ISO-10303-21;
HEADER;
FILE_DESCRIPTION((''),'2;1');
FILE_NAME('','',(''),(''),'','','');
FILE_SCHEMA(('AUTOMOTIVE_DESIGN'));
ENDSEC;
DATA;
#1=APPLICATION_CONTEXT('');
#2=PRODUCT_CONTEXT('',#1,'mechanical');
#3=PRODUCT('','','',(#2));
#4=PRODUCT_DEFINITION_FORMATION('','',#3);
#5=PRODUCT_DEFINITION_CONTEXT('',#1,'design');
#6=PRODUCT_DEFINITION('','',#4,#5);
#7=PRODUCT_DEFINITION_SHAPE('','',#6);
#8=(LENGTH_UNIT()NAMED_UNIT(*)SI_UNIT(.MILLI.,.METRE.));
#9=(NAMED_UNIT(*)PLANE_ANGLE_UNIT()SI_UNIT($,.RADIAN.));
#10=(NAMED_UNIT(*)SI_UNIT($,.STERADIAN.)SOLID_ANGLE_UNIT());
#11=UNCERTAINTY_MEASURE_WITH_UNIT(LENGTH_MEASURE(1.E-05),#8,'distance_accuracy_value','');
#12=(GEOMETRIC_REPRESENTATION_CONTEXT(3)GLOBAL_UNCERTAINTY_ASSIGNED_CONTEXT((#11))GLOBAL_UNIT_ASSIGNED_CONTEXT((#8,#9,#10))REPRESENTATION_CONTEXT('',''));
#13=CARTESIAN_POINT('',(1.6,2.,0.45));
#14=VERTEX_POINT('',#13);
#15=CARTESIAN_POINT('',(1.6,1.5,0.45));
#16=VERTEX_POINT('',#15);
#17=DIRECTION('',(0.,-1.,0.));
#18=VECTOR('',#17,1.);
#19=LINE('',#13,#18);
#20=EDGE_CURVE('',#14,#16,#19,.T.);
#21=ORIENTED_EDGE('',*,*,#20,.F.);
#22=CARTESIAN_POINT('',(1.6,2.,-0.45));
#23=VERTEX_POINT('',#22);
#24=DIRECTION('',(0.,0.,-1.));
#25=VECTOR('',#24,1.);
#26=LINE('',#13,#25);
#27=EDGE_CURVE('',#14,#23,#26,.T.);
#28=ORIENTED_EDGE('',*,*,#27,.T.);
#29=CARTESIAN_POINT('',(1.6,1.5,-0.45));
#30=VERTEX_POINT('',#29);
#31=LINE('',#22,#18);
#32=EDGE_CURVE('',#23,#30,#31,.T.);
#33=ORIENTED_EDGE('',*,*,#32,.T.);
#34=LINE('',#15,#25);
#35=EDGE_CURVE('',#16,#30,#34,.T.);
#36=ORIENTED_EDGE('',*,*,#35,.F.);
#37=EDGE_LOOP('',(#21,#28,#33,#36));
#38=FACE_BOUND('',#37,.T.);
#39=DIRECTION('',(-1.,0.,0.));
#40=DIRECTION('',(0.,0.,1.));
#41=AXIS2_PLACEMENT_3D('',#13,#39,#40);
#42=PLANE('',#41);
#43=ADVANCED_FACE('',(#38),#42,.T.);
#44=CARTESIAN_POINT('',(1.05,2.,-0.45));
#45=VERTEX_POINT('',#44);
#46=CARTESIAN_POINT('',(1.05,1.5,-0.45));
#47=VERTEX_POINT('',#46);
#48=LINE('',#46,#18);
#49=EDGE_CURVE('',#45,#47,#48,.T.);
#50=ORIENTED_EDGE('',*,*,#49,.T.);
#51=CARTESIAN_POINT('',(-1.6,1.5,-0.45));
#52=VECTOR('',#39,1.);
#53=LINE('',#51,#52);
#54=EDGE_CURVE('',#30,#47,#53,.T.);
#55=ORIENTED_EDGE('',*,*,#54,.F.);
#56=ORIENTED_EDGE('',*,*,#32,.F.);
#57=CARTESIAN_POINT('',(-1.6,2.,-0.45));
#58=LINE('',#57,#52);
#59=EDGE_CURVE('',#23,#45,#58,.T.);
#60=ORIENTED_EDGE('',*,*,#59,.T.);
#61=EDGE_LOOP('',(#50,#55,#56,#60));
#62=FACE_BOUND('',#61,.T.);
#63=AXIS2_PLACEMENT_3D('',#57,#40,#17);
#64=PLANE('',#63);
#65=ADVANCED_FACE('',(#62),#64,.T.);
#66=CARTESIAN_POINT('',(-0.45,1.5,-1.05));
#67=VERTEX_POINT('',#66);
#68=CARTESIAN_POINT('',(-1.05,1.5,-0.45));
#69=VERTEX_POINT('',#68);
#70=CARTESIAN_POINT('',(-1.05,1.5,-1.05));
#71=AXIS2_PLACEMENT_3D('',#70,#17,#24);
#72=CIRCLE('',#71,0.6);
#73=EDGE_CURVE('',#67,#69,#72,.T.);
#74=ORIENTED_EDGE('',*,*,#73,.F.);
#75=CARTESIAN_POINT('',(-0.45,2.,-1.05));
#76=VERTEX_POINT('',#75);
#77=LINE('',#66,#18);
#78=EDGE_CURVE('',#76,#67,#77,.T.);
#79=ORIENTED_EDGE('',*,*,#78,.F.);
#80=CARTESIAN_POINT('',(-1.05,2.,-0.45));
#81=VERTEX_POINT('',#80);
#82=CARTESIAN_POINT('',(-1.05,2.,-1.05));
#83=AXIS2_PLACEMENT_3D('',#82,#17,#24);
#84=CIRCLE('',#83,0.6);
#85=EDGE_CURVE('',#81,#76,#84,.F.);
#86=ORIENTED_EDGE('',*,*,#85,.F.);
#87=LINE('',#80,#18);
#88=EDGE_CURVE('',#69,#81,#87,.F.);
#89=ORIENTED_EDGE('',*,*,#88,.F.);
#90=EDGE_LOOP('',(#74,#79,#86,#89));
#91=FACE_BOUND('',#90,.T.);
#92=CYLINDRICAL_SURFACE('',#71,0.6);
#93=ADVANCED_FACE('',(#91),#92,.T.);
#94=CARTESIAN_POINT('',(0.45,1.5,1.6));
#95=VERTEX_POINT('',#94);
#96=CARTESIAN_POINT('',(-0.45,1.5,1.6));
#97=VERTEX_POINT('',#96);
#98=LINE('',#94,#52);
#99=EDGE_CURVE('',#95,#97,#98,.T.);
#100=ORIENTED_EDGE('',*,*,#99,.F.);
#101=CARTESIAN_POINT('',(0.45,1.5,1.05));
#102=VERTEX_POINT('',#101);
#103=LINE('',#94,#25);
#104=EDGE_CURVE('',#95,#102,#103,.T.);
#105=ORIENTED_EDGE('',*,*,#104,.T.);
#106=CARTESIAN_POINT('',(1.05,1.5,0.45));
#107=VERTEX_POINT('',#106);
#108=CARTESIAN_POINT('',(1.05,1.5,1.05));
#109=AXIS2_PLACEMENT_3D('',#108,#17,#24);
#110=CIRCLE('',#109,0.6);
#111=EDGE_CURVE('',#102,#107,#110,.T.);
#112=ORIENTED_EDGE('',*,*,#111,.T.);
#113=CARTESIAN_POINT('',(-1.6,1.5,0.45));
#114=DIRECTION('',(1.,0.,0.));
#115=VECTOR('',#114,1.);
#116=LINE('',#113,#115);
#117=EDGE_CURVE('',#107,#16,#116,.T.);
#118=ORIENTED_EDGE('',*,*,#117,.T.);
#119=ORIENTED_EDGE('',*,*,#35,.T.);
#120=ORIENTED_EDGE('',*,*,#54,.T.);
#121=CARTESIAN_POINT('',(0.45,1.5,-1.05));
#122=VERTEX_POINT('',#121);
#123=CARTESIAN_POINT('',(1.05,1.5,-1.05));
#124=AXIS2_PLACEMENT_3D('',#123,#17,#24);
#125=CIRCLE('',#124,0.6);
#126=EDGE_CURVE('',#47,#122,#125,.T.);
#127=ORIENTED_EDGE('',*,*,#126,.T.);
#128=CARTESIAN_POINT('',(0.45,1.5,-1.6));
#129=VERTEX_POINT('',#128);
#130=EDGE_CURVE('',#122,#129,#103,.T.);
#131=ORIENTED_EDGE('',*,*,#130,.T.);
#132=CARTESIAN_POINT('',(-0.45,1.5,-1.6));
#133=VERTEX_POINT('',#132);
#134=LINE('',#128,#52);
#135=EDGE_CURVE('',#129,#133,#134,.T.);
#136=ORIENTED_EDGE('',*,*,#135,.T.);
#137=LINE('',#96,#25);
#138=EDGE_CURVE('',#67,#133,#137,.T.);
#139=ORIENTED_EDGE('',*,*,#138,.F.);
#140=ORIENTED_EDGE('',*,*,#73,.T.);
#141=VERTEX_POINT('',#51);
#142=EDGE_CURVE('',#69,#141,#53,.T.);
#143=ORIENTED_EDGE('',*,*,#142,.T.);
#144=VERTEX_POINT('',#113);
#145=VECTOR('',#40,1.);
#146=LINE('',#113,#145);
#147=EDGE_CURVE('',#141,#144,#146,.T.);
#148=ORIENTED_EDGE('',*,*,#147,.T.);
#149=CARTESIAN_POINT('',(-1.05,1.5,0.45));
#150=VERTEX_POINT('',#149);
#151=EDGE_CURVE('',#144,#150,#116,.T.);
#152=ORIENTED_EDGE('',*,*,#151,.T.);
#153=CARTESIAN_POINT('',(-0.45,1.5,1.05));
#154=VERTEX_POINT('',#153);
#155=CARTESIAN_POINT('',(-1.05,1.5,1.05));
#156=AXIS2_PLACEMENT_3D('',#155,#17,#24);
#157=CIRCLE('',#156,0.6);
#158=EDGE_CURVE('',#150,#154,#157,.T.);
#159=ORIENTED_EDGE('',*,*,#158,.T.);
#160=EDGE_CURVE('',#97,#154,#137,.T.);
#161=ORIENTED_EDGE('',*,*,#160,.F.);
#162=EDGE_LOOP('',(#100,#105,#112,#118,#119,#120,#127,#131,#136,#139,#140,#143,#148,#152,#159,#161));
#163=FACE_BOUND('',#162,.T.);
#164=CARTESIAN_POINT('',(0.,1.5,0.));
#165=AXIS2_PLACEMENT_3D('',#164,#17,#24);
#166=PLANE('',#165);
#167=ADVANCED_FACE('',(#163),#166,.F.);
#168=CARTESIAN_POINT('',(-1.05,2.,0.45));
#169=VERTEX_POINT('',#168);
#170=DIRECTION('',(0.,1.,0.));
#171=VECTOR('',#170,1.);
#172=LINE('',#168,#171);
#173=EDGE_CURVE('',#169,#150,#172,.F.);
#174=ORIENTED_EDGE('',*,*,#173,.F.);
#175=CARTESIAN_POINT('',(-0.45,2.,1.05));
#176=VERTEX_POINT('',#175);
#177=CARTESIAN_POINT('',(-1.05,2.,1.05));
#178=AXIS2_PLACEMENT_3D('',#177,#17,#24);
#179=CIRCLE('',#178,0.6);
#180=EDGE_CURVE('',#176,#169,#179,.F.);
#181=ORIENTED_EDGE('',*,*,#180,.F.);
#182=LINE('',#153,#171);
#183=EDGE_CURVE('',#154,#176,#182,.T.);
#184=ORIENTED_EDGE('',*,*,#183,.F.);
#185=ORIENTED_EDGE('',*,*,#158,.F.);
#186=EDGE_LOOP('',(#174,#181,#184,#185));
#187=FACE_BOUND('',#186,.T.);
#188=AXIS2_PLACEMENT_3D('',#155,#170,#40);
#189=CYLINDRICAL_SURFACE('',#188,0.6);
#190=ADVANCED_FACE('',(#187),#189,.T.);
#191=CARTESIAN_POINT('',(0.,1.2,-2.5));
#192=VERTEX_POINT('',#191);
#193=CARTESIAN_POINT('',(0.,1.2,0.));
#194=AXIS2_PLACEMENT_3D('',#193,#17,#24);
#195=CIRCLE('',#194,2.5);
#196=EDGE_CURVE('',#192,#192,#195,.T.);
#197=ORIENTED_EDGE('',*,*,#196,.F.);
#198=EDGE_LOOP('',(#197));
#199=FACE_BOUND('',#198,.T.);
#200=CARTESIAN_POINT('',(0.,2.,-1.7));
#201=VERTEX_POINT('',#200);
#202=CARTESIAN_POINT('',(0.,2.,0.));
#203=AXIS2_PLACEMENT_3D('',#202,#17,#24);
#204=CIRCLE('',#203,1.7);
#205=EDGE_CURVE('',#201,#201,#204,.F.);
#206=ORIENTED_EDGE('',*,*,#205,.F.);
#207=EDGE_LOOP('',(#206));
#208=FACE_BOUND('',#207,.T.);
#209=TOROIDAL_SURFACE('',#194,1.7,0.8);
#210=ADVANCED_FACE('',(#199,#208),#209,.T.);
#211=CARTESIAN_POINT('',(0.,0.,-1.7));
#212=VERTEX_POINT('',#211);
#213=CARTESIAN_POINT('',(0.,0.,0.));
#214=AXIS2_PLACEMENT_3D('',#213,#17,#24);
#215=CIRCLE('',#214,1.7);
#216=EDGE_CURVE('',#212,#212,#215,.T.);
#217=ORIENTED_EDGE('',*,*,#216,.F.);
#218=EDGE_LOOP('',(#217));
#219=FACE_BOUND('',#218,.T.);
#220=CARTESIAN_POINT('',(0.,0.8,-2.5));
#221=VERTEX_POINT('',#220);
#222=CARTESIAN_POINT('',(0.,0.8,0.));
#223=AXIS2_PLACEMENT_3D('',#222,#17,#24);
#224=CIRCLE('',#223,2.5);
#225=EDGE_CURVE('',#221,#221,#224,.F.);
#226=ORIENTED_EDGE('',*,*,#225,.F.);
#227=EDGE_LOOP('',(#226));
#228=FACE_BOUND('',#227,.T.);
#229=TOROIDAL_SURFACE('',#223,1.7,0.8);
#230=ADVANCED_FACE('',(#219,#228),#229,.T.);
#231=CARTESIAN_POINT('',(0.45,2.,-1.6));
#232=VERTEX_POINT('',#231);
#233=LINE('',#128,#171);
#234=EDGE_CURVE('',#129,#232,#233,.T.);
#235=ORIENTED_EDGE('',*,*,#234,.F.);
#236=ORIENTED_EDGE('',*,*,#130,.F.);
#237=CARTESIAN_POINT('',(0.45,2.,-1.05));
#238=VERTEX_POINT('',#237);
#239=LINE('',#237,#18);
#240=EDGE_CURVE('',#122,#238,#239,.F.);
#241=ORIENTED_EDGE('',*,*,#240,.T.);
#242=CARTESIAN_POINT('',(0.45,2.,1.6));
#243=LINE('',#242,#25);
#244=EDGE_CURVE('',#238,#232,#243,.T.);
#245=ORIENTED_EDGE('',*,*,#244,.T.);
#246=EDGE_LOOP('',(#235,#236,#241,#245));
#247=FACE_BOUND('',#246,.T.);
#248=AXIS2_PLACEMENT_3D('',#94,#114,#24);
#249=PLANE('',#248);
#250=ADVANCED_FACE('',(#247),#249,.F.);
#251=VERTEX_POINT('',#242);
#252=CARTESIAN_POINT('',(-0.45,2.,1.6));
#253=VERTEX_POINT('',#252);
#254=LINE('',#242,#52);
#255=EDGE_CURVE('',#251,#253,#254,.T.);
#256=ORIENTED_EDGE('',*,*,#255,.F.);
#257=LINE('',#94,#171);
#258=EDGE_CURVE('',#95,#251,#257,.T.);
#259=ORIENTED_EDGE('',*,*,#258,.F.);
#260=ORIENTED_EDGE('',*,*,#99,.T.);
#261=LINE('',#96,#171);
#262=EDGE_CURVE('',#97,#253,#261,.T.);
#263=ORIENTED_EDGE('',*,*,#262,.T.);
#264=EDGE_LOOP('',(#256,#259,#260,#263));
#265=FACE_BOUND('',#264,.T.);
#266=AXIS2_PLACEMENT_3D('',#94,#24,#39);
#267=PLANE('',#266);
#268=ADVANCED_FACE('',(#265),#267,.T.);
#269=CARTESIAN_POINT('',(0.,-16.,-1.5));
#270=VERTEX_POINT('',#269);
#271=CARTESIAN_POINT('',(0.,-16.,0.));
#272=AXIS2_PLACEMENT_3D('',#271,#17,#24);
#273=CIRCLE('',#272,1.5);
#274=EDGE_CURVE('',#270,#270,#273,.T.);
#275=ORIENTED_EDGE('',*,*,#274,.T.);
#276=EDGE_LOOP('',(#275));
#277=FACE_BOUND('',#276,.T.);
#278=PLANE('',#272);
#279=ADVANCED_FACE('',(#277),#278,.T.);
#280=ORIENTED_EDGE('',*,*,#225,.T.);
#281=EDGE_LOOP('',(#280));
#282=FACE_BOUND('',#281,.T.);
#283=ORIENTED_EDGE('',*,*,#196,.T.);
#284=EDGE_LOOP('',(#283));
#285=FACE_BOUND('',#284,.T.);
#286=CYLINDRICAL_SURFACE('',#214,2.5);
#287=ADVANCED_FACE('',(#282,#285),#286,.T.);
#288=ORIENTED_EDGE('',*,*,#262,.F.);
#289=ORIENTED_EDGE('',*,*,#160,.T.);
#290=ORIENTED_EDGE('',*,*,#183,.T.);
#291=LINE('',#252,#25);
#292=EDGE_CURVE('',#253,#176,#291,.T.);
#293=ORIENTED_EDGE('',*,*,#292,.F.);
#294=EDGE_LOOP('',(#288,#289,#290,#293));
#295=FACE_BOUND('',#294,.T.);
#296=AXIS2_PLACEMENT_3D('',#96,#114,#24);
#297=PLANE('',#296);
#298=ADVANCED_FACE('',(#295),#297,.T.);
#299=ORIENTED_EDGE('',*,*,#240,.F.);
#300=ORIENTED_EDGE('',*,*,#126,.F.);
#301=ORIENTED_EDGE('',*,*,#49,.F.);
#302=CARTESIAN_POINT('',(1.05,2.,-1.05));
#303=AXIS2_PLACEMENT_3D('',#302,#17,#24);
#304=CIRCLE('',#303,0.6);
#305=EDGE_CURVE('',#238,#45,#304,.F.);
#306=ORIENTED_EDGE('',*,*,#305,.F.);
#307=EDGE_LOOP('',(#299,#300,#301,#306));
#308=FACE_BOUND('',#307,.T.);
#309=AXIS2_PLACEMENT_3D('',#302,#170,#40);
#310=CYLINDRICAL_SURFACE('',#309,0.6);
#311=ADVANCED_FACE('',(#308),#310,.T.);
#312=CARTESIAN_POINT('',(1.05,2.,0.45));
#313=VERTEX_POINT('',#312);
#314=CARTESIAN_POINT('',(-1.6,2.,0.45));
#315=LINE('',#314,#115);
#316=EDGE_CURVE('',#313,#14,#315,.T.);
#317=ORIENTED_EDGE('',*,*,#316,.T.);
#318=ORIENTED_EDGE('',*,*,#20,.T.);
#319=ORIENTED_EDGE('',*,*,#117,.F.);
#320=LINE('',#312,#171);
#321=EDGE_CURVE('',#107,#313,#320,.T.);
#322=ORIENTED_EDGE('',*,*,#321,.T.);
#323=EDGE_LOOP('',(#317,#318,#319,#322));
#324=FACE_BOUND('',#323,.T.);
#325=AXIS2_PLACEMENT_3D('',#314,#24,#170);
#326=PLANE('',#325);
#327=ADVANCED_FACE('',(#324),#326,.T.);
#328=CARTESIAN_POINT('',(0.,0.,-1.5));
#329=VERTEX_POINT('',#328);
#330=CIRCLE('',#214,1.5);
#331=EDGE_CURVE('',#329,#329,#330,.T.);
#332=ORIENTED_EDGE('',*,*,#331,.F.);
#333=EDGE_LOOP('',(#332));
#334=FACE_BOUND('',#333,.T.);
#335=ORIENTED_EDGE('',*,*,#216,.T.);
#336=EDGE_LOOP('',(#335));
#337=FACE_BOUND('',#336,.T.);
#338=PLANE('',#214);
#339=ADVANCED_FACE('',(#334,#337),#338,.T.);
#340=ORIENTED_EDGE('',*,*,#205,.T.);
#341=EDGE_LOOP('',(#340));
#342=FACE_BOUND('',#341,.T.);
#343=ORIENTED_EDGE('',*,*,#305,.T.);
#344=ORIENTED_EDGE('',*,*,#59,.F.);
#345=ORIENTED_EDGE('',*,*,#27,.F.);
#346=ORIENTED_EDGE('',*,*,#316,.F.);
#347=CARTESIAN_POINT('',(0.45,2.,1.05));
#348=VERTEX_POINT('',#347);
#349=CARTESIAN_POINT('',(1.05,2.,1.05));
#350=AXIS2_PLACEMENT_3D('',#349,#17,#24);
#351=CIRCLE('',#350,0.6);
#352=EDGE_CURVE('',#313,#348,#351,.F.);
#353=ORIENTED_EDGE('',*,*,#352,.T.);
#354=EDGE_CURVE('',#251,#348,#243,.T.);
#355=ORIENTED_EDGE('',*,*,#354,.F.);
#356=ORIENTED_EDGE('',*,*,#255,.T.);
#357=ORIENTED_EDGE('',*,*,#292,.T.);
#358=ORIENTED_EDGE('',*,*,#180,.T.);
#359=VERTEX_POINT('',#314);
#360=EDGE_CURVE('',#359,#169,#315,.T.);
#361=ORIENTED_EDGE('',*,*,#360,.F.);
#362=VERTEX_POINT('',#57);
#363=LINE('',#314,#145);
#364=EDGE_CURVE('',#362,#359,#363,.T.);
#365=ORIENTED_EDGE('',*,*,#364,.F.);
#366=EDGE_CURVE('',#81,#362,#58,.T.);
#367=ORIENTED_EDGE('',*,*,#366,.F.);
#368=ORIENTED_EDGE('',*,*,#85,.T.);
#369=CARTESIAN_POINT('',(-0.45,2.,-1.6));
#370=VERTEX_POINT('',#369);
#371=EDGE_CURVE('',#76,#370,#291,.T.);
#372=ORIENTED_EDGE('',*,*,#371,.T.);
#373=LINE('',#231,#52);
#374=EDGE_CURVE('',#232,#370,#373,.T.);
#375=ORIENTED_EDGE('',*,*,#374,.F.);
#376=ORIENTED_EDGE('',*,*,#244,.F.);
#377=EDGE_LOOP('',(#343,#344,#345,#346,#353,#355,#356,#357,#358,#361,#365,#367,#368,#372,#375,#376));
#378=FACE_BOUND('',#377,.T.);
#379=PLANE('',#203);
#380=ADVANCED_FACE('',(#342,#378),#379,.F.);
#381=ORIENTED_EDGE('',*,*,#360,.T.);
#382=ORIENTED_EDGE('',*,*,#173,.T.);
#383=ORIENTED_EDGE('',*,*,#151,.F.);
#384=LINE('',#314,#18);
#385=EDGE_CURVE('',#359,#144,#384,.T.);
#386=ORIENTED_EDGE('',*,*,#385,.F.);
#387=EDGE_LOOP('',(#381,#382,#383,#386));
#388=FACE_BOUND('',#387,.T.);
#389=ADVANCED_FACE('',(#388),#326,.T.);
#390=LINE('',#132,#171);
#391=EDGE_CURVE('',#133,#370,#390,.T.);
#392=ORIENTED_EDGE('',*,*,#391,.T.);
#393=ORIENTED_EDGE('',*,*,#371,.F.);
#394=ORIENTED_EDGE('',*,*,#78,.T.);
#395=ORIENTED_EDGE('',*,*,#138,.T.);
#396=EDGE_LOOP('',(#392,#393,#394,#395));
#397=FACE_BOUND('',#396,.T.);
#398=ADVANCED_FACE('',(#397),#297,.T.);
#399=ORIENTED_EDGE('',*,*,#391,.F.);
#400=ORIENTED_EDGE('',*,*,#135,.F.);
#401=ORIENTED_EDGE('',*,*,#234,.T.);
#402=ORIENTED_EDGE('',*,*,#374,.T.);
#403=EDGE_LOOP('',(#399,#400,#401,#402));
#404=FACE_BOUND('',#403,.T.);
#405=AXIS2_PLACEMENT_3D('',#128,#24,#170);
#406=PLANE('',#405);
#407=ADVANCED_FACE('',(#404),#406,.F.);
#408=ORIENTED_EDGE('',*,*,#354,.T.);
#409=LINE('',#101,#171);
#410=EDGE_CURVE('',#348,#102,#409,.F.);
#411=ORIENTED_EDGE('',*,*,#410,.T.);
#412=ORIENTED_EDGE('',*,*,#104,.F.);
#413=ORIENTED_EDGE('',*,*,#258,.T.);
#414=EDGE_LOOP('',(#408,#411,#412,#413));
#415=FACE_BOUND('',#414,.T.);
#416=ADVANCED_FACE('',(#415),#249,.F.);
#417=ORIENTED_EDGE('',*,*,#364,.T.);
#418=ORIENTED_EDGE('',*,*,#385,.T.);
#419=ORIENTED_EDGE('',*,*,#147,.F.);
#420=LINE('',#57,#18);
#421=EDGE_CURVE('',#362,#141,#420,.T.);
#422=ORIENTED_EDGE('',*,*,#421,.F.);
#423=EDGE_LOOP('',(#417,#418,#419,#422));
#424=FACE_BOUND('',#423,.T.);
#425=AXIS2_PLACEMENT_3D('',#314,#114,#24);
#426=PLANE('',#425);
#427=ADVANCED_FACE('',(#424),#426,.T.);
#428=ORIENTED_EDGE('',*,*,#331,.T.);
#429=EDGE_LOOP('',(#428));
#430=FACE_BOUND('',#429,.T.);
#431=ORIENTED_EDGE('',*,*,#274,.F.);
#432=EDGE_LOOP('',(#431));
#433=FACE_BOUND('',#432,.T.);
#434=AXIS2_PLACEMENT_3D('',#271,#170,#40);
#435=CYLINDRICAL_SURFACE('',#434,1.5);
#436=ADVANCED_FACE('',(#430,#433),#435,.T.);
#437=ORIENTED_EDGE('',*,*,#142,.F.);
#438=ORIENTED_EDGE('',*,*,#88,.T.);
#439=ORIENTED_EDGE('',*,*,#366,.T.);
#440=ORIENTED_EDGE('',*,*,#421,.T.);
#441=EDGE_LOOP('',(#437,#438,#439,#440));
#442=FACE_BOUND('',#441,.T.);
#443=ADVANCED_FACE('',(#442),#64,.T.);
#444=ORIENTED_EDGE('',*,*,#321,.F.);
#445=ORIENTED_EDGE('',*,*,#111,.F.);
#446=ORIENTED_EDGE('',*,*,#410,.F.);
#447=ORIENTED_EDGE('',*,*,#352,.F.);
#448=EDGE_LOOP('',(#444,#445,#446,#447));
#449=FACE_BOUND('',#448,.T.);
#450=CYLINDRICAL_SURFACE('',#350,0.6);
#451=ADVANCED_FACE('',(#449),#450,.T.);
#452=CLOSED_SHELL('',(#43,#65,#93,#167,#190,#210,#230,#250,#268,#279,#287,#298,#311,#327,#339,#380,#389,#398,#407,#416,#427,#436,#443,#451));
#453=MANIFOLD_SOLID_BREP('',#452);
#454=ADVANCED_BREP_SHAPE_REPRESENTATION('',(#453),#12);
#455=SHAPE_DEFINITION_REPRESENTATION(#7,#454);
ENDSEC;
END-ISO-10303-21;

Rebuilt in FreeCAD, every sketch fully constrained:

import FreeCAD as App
import Part
import Sketcher

V = App.Vector
Q = App.Units.Quantity


def edges_at(feature, points):
    """Names of the edges that pass closest to the given points."""
    edges = feature.Shape.Edges
    near = lambda p: min(range(len(edges)), key=lambda i: edges[i].distToShape(Part.Vertex(*p))[0])
    return sorted({f"Edge{near(p) + 1}" for p in points})


def add_polygon(sketch, points):
    """Adds a closed chain of lines whose ends are joined by coincident constraints."""
    first, n = sketch.GeometryCount, len(points)
    for a, b in zip(points, points[1:] + points[:1]):
        sketch.addGeometry(Part.LineSegment(App.Vector(*a, 0), App.Vector(*b, 0)), False)
    for i in range(n):
        sketch.addConstraint(Sketcher.Constraint("Coincident", first + i, 2, first + (i + 1) % n, 1))

doc = App.newDocument("Part")
params = doc.addObject("Spreadsheet::Sheet", "Params")
for row, (alias, value) in enumerate([
    ("sketch1_width", "2 mm"),
    ("sketch1_height", "2.5 mm"),
    ("revolution_angle", "360 deg"),
    ("fillet_radius", "0.8 mm"),
    ("sketch2_width", "0.9 mm"),
    ("sketch2_height", "3.2 mm"),
    ("pocket1_length", "0.5 mm"),
    ("sketch3_width", "3.2 mm"),
    ("sketch3_height", "0.9 mm"),
    ("fillet2_radius", "0.6 mm"),
    ("sketch4_diameter", "3 mm"),
    ("pad1_length", "16 mm"),
], start=1):
    params.set(f"A{row}", alias)
    params.set(f"B{row}", "=" + value)
    params.setAlias(f"B{row}", alias)

body = doc.addObject("PartDesign::Body", "Body")

# Sketch on YZ plane
sketch1 = doc.addObject("Sketcher::SketchObject", "Sketch")
body.addObject(sketch1)
sketch1.AttachmentSupport = (doc.YZ_Plane, [""])
sketch1.MapMode = "FlatFace"
add_polygon(sketch1, [(2, 0), (0, 0), (0, -2.5), (2, -2.5)])  # lines 0-3
sketch1.addConstraint([
    Sketcher.Constraint("Horizontal", 0),
    Sketcher.Constraint("Vertical", 1),
    Sketcher.Constraint("Horizontal", 2),
    Sketcher.Constraint("Vertical", 3),
    Sketcher.Constraint("Coincident", 0, 2, -1, 1),
    Sketcher.Constraint("DistanceX", 0, 2, 0, 1, Q("2 mm")),
    Sketcher.Constraint("DistanceY", 1, 2, 1, 1, Q("2.5 mm")),
])
sketch1.setExpression("Constraints[9]", "Params.sketch1_width")
sketch1.setExpression("Constraints[10]", "Params.sketch1_height")
revolution = doc.addObject("PartDesign::Revolution", "Revolution")
body.addObject(revolution)
revolution.Profile = sketch1
revolution.ReferenceAxis = (sketch1, ["H_Axis"])
revolution.setExpression("Angle", "Params.revolution_angle")
doc.recompute()

fillet = doc.addObject("PartDesign::Fillet", "Fillet")
body.addObject(fillet)
fillet.Base = (revolution, edges_at(revolution, [(0, 2, 2.5), (0, 0, 2.5)]))
fillet.setExpression("Radius", "Params.fillet_radius")

# Sketch on XZ plane
sketch2 = doc.addObject("Sketcher::SketchObject", "Sketch001")
body.addObject(sketch2)
sketch2.AttachmentSupport = (doc.XZ_Plane, [""])
sketch2.MapMode = "FlatFace"
sketch2.AttachmentOffset = App.Placement(V(0, 0, -2), App.Rotation())
add_polygon(sketch2, [(-0.5, -1.6), (-0.5, 1.6), (0.5, 1.6), (0.5, -1.6)])  # lines 0-3
sketch2.addConstraint([
    Sketcher.Constraint("Vertical", 0),
    Sketcher.Constraint("Horizontal", 1),
    Sketcher.Constraint("Vertical", 2),
    Sketcher.Constraint("Horizontal", 3),
    Sketcher.Constraint("Symmetric", 0, 2, 2, 2, -1, 1),
    Sketcher.Constraint("DistanceX", 1, 1, 1, 2, Q("0.9 mm")),
    Sketcher.Constraint("DistanceY", 0, 1, 0, 2, Q("3.2 mm")),
])
sketch2.setExpression("Constraints[9]", "Params.sketch2_width")
sketch2.setExpression("Constraints[10]", "Params.sketch2_height")
pocket1 = doc.addObject("PartDesign::Pocket", "Pocket")
body.addObject(pocket1)
pocket1.Profile = sketch2
pocket1.setExpression("Length", "Params.pocket1_length")
pocket1.Reversed = True

# Sketch on XZ plane
sketch3 = doc.addObject("Sketcher::SketchObject", "Sketch002")
body.addObject(sketch3)
sketch3.AttachmentSupport = (doc.XZ_Plane, [""])
sketch3.MapMode = "FlatFace"
sketch3.AttachmentOffset = App.Placement(V(0, 0, -1.5), App.Rotation())
add_polygon(sketch3, [(-1.6, -0.5), (-1.6, 0.5), (1.6, 0.5), (1.6, -0.5)])  # lines 0-3
sketch3.addConstraint([
    Sketcher.Constraint("Vertical", 0),
    Sketcher.Constraint("Horizontal", 1),
    Sketcher.Constraint("Vertical", 2),
    Sketcher.Constraint("Horizontal", 3),
    Sketcher.Constraint("Symmetric", 0, 2, 2, 2, -1, 1),
    Sketcher.Constraint("DistanceX", 1, 1, 1, 2, Q("3.2 mm")),
    Sketcher.Constraint("DistanceY", 0, 1, 0, 2, Q("0.9 mm")),
])
sketch3.setExpression("Constraints[9]", "Params.sketch3_width")
sketch3.setExpression("Constraints[10]", "Params.sketch3_height")
pocket2 = doc.addObject("PartDesign::Pocket", "Pocket001")
body.addObject(pocket2)
pocket2.Profile = sketch3
pocket2.Type = "ThroughAll"
doc.recompute()

fillet2 = doc.addObject("PartDesign::Fillet", "Fillet001")
body.addObject(fillet2)
fillet2.Base = (pocket2, edges_at(pocket2, [
    (0.45, 1.75, -0.45),
    (0.45, 1.75, 0.45),
    (-0.45, 1.75, -0.45),
    (-0.45, 1.75, 0.45),
]))
fillet2.setExpression("Radius", "Params.fillet2_radius")

# Sketch on XZ plane
sketch4 = doc.addObject("Sketcher::SketchObject", "Sketch003")
body.addObject(sketch4)
sketch4.AttachmentSupport = (doc.XZ_Plane, [""])
sketch4.MapMode = "FlatFace"
sketch4.addGeometry(Part.Circle(V(0, 0, 0), V(0, 0, 1), 1.5), False)
sketch4.addConstraint([
    Sketcher.Constraint("Coincident", 0, 3, -1, 1),
    Sketcher.Constraint("Diameter", 0, Q("3 mm")),
])
sketch4.setExpression("Constraints[1]", "Params.sketch4_diameter")
pad1 = doc.addObject("PartDesign::Pad", "Pad")
body.addObject(pad1)
pad1.Profile = sketch4
pad1.setExpression("Length", "Params.pad1_length")

doc.recompute()
